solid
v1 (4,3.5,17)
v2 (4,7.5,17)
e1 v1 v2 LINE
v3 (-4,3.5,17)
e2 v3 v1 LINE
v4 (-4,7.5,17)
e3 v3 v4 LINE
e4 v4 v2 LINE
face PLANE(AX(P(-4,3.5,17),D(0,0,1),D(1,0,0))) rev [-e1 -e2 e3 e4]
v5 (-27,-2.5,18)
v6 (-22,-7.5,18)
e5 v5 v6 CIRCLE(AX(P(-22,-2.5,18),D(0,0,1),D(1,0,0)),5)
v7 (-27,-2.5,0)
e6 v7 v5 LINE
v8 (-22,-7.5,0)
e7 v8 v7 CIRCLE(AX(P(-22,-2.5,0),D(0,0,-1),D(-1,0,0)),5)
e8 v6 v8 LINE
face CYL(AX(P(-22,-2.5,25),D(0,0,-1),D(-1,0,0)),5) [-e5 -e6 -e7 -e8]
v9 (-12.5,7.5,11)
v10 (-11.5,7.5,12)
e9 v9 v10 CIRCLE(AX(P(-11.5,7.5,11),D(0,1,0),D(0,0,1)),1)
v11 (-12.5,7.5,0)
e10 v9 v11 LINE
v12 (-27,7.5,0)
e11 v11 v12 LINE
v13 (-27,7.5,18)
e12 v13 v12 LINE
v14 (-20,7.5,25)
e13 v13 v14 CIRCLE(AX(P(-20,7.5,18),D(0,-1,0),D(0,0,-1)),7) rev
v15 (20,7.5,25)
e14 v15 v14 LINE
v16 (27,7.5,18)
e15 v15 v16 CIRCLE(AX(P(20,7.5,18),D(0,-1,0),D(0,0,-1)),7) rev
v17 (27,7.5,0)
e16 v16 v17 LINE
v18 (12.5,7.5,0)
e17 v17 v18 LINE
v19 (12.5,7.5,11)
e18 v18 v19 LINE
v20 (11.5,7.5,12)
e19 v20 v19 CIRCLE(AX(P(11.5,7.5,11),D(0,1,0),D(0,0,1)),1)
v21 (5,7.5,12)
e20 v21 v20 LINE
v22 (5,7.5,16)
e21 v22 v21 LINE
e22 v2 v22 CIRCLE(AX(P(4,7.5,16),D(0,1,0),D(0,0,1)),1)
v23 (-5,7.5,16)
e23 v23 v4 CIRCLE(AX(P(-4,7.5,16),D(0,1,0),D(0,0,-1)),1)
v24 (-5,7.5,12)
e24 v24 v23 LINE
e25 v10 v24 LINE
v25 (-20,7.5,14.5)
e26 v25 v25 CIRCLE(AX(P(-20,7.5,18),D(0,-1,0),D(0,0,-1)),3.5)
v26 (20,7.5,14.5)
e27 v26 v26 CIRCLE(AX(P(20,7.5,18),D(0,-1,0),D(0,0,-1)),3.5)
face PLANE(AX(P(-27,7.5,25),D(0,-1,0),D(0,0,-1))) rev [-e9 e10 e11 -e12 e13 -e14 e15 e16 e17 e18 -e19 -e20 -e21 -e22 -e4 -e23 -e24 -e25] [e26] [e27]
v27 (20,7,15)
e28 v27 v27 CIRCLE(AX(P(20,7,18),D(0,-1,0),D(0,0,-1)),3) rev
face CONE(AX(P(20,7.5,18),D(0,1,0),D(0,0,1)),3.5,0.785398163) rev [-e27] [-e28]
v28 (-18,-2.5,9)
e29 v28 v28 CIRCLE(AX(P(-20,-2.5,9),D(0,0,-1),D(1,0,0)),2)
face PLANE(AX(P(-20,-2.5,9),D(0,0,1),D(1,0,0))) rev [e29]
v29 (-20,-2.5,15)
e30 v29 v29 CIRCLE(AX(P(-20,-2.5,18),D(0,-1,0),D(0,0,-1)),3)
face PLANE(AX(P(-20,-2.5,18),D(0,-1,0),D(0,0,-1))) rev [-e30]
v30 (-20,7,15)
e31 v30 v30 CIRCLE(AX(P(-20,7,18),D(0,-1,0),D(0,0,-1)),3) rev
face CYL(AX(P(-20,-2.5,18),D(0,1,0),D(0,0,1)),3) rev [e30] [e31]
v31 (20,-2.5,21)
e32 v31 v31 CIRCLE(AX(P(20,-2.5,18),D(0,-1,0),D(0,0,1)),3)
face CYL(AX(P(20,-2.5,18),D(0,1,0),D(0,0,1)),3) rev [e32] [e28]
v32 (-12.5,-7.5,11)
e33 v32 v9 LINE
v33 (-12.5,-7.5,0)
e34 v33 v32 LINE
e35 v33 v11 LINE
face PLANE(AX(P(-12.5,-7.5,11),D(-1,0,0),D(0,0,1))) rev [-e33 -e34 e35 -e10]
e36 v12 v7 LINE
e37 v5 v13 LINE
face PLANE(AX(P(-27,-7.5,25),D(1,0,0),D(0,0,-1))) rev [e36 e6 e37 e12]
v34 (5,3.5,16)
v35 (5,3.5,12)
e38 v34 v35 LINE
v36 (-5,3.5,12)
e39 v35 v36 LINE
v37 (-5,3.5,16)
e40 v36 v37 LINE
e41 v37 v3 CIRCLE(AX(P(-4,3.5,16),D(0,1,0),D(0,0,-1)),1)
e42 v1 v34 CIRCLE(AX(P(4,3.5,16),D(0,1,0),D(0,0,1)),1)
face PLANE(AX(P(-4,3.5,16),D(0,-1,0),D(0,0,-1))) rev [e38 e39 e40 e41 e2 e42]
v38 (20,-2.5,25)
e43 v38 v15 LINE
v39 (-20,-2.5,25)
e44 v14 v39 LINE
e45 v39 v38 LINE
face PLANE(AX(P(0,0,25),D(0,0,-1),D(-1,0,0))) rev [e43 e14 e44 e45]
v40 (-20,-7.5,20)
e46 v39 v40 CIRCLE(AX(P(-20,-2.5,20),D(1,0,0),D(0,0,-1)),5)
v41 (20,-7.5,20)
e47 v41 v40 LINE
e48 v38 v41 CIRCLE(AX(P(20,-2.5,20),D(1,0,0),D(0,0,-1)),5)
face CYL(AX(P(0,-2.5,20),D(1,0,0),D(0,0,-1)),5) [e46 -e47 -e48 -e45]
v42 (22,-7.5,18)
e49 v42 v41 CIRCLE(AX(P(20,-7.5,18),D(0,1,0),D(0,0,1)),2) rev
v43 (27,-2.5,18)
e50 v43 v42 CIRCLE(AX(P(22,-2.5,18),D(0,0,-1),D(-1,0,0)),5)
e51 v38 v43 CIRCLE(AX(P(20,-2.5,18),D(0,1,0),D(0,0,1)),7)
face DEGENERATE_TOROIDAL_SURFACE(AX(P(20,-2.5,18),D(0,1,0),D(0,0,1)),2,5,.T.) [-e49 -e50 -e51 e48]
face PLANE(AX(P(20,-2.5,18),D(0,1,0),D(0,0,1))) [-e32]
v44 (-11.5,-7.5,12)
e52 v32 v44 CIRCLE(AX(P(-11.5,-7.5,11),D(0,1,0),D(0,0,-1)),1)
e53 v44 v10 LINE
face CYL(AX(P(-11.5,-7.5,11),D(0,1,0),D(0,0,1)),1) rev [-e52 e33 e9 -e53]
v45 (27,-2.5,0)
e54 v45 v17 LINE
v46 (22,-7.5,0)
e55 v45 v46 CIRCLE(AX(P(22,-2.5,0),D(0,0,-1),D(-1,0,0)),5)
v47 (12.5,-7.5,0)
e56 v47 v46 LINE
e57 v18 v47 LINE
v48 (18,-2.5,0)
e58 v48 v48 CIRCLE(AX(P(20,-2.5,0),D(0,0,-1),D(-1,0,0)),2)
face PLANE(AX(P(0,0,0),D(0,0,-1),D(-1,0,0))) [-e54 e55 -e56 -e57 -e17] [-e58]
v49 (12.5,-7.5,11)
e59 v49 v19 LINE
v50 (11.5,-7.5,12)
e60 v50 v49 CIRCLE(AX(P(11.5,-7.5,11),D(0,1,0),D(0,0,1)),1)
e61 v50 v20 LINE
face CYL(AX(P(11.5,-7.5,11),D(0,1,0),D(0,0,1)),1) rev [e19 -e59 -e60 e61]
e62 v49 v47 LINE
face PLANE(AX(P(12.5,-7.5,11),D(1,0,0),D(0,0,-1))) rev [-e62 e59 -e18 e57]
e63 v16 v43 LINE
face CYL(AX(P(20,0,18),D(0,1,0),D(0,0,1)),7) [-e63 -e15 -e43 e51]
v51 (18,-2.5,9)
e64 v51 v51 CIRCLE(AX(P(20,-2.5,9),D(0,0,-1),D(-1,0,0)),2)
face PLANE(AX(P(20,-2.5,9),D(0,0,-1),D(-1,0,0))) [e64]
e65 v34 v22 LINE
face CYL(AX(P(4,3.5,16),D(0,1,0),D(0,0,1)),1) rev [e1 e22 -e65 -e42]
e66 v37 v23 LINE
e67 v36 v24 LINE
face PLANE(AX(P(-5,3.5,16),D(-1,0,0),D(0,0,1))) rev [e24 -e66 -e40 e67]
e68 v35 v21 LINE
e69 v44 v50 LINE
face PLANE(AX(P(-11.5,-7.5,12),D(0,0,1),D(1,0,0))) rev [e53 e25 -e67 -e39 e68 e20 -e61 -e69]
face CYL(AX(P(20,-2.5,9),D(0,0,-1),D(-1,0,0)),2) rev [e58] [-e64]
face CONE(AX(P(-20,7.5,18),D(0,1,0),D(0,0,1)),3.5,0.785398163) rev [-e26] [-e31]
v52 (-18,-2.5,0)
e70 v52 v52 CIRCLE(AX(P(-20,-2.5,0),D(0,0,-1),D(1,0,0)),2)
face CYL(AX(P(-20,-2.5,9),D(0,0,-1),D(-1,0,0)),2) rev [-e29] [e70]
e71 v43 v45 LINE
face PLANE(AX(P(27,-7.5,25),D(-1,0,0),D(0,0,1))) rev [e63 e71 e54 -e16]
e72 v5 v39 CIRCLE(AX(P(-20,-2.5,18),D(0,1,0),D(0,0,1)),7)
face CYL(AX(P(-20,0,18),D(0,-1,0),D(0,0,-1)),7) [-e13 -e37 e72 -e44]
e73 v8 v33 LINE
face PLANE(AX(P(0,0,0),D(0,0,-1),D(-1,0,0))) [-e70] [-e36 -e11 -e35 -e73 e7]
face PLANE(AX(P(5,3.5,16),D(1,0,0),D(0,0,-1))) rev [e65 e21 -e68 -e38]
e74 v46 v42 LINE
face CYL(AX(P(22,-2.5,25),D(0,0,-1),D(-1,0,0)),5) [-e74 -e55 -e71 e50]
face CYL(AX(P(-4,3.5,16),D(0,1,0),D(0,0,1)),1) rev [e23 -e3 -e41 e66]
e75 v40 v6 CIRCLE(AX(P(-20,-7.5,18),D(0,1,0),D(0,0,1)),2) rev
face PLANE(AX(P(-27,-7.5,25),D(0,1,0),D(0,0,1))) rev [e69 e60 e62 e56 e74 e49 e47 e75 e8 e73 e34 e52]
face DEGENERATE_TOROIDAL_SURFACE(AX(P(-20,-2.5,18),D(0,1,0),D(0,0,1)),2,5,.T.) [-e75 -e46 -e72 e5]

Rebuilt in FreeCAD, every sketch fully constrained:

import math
import FreeCAD as App
import Part
import Sketcher
Q = App.Units.Quantity


def edges_at(feature, points):
    """Names of the edges that pass closest to the given points."""
    edges = feature.Shape.Edges
    near = lambda p: min(range(len(edges)), key=lambda i: edges[i].distToShape(Part.Vertex(*p))[0])
    return sorted({f"Edge{near(p) + 1}" for p in points})


def add_polygon(sketch, points):
    """Adds a closed chain of lines whose ends are joined by coincident constraints."""
    first, n = sketch.GeometryCount, len(points)
    for a, b in zip(points, points[1:] + points[:1]):
        sketch.addGeometry(Part.LineSegment(App.Vector(*a, 0), App.Vector(*b, 0)), False)
    for i in range(n):
        sketch.addConstraint(Sketcher.Constraint("Coincident", first + i, 2, first + (i + 1) % n, 1))

doc = App.newDocument("Part")
body = doc.addObject("PartDesign::Body", "Body")

# Sketch on XY plane
sketch1 = doc.addObject("Sketcher::SketchObject", "Sketch")
body.addObject(sketch1)
sketch1.AttachmentSupport = (doc.XY_Plane, [""])
sketch1.MapMode = "FlatFace"
add_polygon(sketch1, [(-27, 8), (-27, -8), (27, -8), (27, 8)])  # lines 0-3
sketch1.addConstraint(Sketcher.Constraint("Vertical", 0))
sketch1.addConstraint(Sketcher.Constraint("Horizontal", 1))
sketch1.addConstraint(Sketcher.Constraint("Vertical", 2))
sketch1.addConstraint(Sketcher.Constraint("Horizontal", 3))
sketch1.addConstraint(Sketcher.Constraint("Symmetric", 0, 2, 2, 2, -1, 1))
sketch1.addConstraint(Sketcher.Constraint("DistanceX", 1, 1, 1, 2, Q("54 mm")))
sketch1.addConstraint(Sketcher.Constraint("DistanceY", 0, 2, 0, 1, Q("15 mm")))
pad1 = doc.addObject("PartDesign::Pad", "Pad")
body.addObject(pad1)
pad1.Profile = sketch1
pad1.Length = 25

# Sketch on XZ plane
sketch2 = doc.addObject("Sketcher::SketchObject", "Sketch001")
body.addObject(sketch2)
sketch2.AttachmentSupport = (doc.XZ_Plane, [""])
sketch2.MapMode = "FlatFace"
sketch2.AttachmentOffset = App.Placement(App.Vector(0, 0, -7.5), App.Rotation())
sketch2.addGeometry(Part.Circle(App.Vector(-20, 18, 0), App.Vector(0, 0, 1), 3), False)
sketch2.addGeometry(Part.Circle(App.Vector(20, 18, 0), App.Vector(0, 0, 1), 3), False)
sketch2.addConstraint(Sketcher.Constraint("Equal", 0, 1))
sketch2.addConstraint(Sketcher.Constraint("Symmetric", 0, 3, 1, 3, -2))
sketch2.addConstraint(Sketcher.Constraint("Diameter", 0, Q("6 mm")))
sketch2.addConstraint(Sketcher.Constraint("DistanceX", 0, 3, -1, 1, Q("20 mm")))
sketch2.addConstraint(Sketcher.Constraint("DistanceY", -1, 1, 0, 3, Q("18 mm")))
pocket1 = doc.addObject("PartDesign::Pocket", "Pocket")
body.addObject(pocket1)
pocket1.Profile = sketch2
pocket1.Length = 10
pocket1.Reversed = True

# Sketch on XY plane
sketch3 = doc.addObject("Sketcher::SketchObject", "Sketch002")
body.addObject(sketch3)
sketch3.AttachmentSupport = (doc.XY_Plane, [""])
sketch3.MapMode = "FlatFace"
sketch3.addGeometry(Part.Circle(App.Vector(20, -2.5, 0), App.Vector(0, 0, 1), 2), False)
sketch3.addGeometry(Part.Circle(App.Vector(-20, -2.5, 0), App.Vector(0, 0, 1), 2), False)
sketch3.addConstraint(Sketcher.Constraint("Equal", 0, 1))
sketch3.addConstraint(Sketcher.Constraint("Symmetric", 0, 3, 1, 3, -2))
sketch3.addConstraint(Sketcher.Constraint("Diameter", 0, Q("4 mm")))
sketch3.addConstraint(Sketcher.Constraint("DistanceX", -1, 1, 0, 3, Q("20 mm")))
sketch3.addConstraint(Sketcher.Constraint("DistanceY", 0, 3, -1, 1, Q("2.5 mm")))
pocket2 = doc.addObject("PartDesign::Pocket", "Pocket001")
body.addObject(pocket2)
pocket2.Profile = sketch3
pocket2.Length = 9
pocket2.Reversed = True
doc.recompute()

fillet = doc.addObject("PartDesign::Fillet", "Fillet")
body.addObject(fillet)
fillet.Base = (pocket2, edges_at(pocket2, [(-27, 0, 25), (27, 0, 25)]))
fillet.Radius = 7
doc.recompute()

fillet2 = doc.addObject("PartDesign::Fillet", "Fillet001")
body.addObject(fillet2)
fillet2.Base = (fillet, edges_at(fillet, [
    (0, -7.5, 25),
    (27, -7.5, 9),
    (-27, -7.5, 9),
    (-24.95, -7.5, 22.95),
    (24.95, -7.5, 22.95),
]))
fillet2.Radius = 5
doc.recompute()

chamfer = doc.addObject("PartDesign::Chamfer", "Chamfer")
body.addObject(chamfer)
chamfer.Base = (fillet2, edges_at(fillet2, [(-20, 7.5, 21), (20, 7.5, 15)]))
chamfer.Size = 0.5

# Sketch on XZ plane
sketch4 = doc.addObject("Sketcher::SketchObject", "Sketch003")
body.addObject(sketch4)
sketch4.AttachmentSupport = (doc.XZ_Plane, [""])
sketch4.MapMode = "FlatFace"
sketch4.AttachmentOffset = App.Placement(App.Vector(0, 0, -7.5), App.Rotation())
sketch4.addGeometry(Part.LineSegment(App.Vector(-11.5, 12, 0), App.Vector(11.5, 12, 0)), False)
sketch4.addGeometry(Part.ArcOfCircle(Part.Circle(App.Vector(11.5, 11, 0), App.Vector(0, 0, 1), 1), math.radians(0), math.radians(90)), False)
sketch4.addGeometry(Part.LineSegment(App.Vector(12.5, 11, 0), App.Vector(12.5, -3, 0)), False)
sketch4.addGeometry(Part.ArcOfCircle(Part.Circle(App.Vector(11.5, -3, 0), App.Vector(0, 0, 1), 1), math.radians(-90), math.radians(0)), False)
sketch4.addGeometry(Part.LineSegment(App.Vector(11.5, -4, 0), App.Vector(-11.5, -4, 0)), False)
sketch4.addGeometry(Part.ArcOfCircle(Part.Circle(App.Vector(-11.5, -3, 0), App.Vector(0, 0, 1), 1), math.radians(-180), math.radians(-90)), False)
sketch4.addGeometry(Part.LineSegment(App.Vector(-12.5, -3, 0), App.Vector(-12.5, 11, 0)), False)
sketch4.addGeometry(Part.ArcOfCircle(Part.Circle(App.Vector(-11.5, 11, 0), App.Vector(0, 0, 1), 1), math.radians(90), math.radians(180)), False)
sketch4.addConstraint(Sketcher.Constraint("Tangent", 0, 2, 1, 2))
sketch4.addConstraint(Sketcher.Constraint("Tangent", 1, 1, 2, 1))
sketch4.addConstraint(Sketcher.Constraint("Tangent", 2, 2, 3, 2))
sketch4.addConstraint(Sketcher.Constraint("Tangent", 3, 1, 4, 1))
sketch4.addConstraint(Sketcher.Constraint("Tangent", 4, 2, 5, 2))
sketch4.addConstraint(Sketcher.Constraint("Tangent", 5, 1, 6, 1))
sketch4.addConstraint(Sketcher.Constraint("Tangent", 6, 2, 7, 2))
sketch4.addConstraint(Sketcher.Constraint("Tangent", 7, 1, 0, 1))
sketch4.addConstraint(Sketcher.Constraint("Horizontal", 0))
sketch4.addConstraint(Sketcher.Constraint("Vertical", 2))
sketch4.addConstraint(Sketcher.Constraint("Horizontal", 4))
sketch4.addConstraint(Sketcher.Constraint("Vertical", 6))
sketch4.addConstraint(Sketcher.Constraint("Equal", 1, 3))
sketch4.addConstraint(Sketcher.Constraint("Equal", 3, 5))
sketch4.addConstraint(Sketcher.Constraint("Equal", 5, 7))
sketch4.addConstraint(Sketcher.Constraint("Radius", 1, Q("1 mm")))
sketch4.addConstraint(Sketcher.Constraint("DistanceX", 0, 1, 0, 2, Q("23 mm")))
sketch4.addConstraint(Sketcher.Constraint("DistanceY", 2, 2, 2, 1, Q("14 mm")))
sketch4.addConstraint(Sketcher.Constraint("DistanceY", -1, 1, 1, 3, Q("11 mm")))
sketch4.addConstraint(Sketcher.Constraint("DistanceX", -1, 1, 1, 3, Q("11.5 mm")))
pocket3 = doc.addObject("PartDesign::Pocket", "Pocket002")
body.addObject(pocket3)
pocket3.Profile = sketch4
pocket3.Type = "ThroughAll"
pocket3.Midplane = True

# Sketch on XZ plane
sketch5 = doc.addObject("Sketcher::SketchObject", "Sketch004")
body.addObject(sketch5)
sketch5.AttachmentSupport = (doc.XZ_Plane, [""])
sketch5.MapMode = "FlatFace"
sketch5.AttachmentOffset = App.Placement(App.Vector(0, 0, -7.5), App.Rotation())
sketch5.addGeometry(Part.LineSegment(App.Vector(-4, 17, 0), App.Vector(4, 17, 0)), False)
sketch5.addGeometry(Part.ArcOfCircle(Part.Circle(App.Vector(4, 16, 0), App.Vector(0, 0, 1), 1), math.radians(0), math.radians(90)), False)
sketch5.addGeometry(Part.LineSegment(App.Vector(5, 16, 0), App.Vector(5, 12, 0)), False)
sketch5.addGeometry(Part.LineSegment(App.Vector(5, 12, 0), App.Vector(-5, 12, 0)), False)
sketch5.addGeometry(Part.LineSegment(App.Vector(-5, 12, 0), App.Vector(-5, 16, 0)), False)
sketch5.addGeometry(Part.ArcOfCircle(Part.Circle(App.Vector(-4, 16, 0), App.Vector(0, 0, 1), 1), math.radians(90), math.radians(180)), False)
sketch5.addConstraint(Sketcher.Constraint("Tangent", 0, 2, 1, 2))
sketch5.addConstraint(Sketcher.Constraint("Tangent", 1, 1, 2, 1))
sketch5.addConstraint(Sketcher.Constraint("Coincident", 2, 2, 3, 1))
sketch5.addConstraint(Sketcher.Constraint("Coincident", 3, 2, 4, 1))
sketch5.addConstraint(Sketcher.Constraint("Tangent", 4, 2, 5, 2))
sketch5.addConstraint(Sketcher.Constraint("Tangent", 5, 1, 0, 1))
sketch5.addConstraint(Sketcher.Constraint("Horizontal", 0))
sketch5.addConstraint(Sketcher.Constraint("Vertical", 2))
sketch5.addConstraint(Sketcher.Constraint("Horizontal", 3))
sketch5.addConstraint(Sketcher.Constraint("Vertical", 4))
sketch5.addConstraint(Sketcher.Constraint("Equal", 1, 5))
sketch5.addConstraint(Sketcher.Constraint("Radius", 1, Q("1 mm")))
sketch5.addConstraint(Sketcher.Constraint("DistanceX", 0, 1, 0, 2, Q("8 mm")))
sketch5.addConstraint(Sketcher.Constraint("DistanceY", 2, 2, 2, 1, Q("4 mm")))
sketch5.addConstraint(Sketcher.Constraint("DistanceX", -1, 1, 1, 3, Q("4 mm")))
sketch5.addConstraint(Sketcher.Constraint("DistanceY", -1, 1, 1, 3, Q("16 mm")))
pocket4 = doc.addObject("PartDesign::Pocket", "Pocket003")
body.addObject(pocket4)
pocket4.Profile = sketch5
pocket4.Length = 4
pocket4.Reversed = True

doc.recompute()
